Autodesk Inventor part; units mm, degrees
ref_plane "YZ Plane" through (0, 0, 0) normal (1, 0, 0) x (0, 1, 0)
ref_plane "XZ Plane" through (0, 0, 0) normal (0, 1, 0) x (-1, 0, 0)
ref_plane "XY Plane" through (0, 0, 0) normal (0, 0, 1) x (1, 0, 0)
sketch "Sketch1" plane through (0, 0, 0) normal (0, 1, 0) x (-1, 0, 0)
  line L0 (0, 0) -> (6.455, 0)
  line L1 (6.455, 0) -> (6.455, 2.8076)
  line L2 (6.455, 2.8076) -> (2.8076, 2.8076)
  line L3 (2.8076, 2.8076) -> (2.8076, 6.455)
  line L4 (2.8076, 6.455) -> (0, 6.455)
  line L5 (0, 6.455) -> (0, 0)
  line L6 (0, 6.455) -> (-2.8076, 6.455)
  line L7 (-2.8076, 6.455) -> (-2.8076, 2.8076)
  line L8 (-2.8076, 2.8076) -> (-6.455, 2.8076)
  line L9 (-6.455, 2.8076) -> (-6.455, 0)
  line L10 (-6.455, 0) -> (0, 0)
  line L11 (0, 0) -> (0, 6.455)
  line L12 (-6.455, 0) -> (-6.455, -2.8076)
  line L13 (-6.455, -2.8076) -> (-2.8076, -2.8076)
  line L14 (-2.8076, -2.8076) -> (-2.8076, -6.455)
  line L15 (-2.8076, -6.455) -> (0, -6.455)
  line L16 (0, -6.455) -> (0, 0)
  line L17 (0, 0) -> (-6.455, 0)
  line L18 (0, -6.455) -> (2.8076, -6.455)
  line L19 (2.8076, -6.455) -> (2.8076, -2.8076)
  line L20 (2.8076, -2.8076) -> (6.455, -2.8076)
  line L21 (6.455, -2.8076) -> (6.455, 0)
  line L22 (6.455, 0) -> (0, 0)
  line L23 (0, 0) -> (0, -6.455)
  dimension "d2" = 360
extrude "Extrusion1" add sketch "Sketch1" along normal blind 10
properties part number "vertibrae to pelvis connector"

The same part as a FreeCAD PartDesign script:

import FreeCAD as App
import Part
import Sketcher

V = App.Vector

doc = App.newDocument("Part")
body = doc.addObject("PartDesign::Body", "Body")

# Sketch on XZ plane
sketch1 = body.newObject("Sketcher::SketchObject", "Sketch")
sketch1.AttachmentSupport = (doc.getObject("XZ_Plane"), [""])
sketch1.MapMode = "FlatFace"
sketch1.addGeometry([
    Part.LineSegment(V(-2.8, 6.5, 0), V(2.8, 6.5, 0)),  # 0
    Part.LineSegment(V(2.8, 6.5, 0), V(2.8, 2.8, 0)),  # 1
    Part.LineSegment(V(2.8, 2.8, 0), V(6.5, 2.8, 0)),  # 2
    Part.LineSegment(V(6.5, 2.8, 0), V(6.5, -2.8, 0)),  # 3
    Part.LineSegment(V(6.5, -2.8, 0), V(2.8, -2.8, 0)),  # 4
    Part.LineSegment(V(2.8, -2.8, 0), V(2.8, -6.5, 0)),  # 5
    Part.LineSegment(V(2.8, -6.5, 0), V(-2.8, -6.5, 0)),  # 6
    Part.LineSegment(V(-2.8, -6.5, 0), V(-2.8, -2.8, 0)),  # 7
    Part.LineSegment(V(-2.8, -2.8, 0), V(-6.5, -2.8, 0)),  # 8
    Part.LineSegment(V(-6.5, -2.8, 0), V(-6.5, 2.8, 0)),  # 9
    Part.LineSegment(V(-6.5, 2.8, 0), V(-2.8, 2.8, 0)),  # 10
    Part.LineSegment(V(-2.8, 2.8, 0), V(-2.8, 6.5, 0)),  # 11
], False)
sketch1.addConstraint([
    Sketcher.Constraint("Coincident", 0, 2, 1, 1),
    Sketcher.Constraint("Coincident", 1, 2, 2, 1),
    Sketcher.Constraint("Coincident", 2, 2, 3, 1),
    Sketcher.Constraint("Coincident", 3, 2, 4, 1),
    Sketcher.Constraint("Coincident", 4, 2, 5, 1),
    Sketcher.Constraint("Coincident", 5, 2, 6, 1),
    Sketcher.Constraint("Coincident", 6, 2, 7, 1),
    Sketcher.Constraint("Coincident", 7, 2, 8, 1),
    Sketcher.Constraint("Coincident", 8, 2, 9, 1),
    Sketcher.Constraint("Coincident", 9, 2, 10, 1),
    Sketcher.Constraint("Coincident", 10, 2, 11, 1),
    Sketcher.Constraint("Coincident", 11, 2, 0, 1),
    Sketcher.Constraint("Horizontal", 0),
    Sketcher.Constraint("Vertical", 1),
    Sketcher.Constraint("Horizontal", 2),
    Sketcher.Constraint("Vertical", 3),
    Sketcher.Constraint("Horizontal", 4),
    Sketcher.Constraint("Vertical", 5),
    Sketcher.Constraint("Horizontal", 6),
    Sketcher.Constraint("Vertical", 7),
    Sketcher.Constraint("Horizontal", 8),
    Sketcher.Constraint("Vertical", 9),
    Sketcher.Constraint("Horizontal", 10),
    Sketcher.Constraint("Vertical", 11),
    Sketcher.Constraint("Symmetric", 0, 2, 6, 2, -1, 1),
    Sketcher.Constraint("Symmetric", 2, 2, 8, 2, -1, 1),
    Sketcher.Constraint("Symmetric", 4, 2, 10, 2, -1, 1),
    Sketcher.Constraint("Symmetric", 4, 2, 7, 2, -2),
    Sketcher.Constraint("Equal", 10, 1),
    Sketcher.Constraint("Equal", 6, 3),
    Sketcher.Constraint("DistanceY", 5, 2, 0, 2, 12.91),
    Sketcher.Constraint("DistanceX", 0, 1, 0, 2, 5.6152),
])
pad1 = body.newObject("PartDesign::Pad", "Pad")
pad1.Profile = sketch1
pad1.Length = 10
pad1.Reversed = True

doc.recompute()
